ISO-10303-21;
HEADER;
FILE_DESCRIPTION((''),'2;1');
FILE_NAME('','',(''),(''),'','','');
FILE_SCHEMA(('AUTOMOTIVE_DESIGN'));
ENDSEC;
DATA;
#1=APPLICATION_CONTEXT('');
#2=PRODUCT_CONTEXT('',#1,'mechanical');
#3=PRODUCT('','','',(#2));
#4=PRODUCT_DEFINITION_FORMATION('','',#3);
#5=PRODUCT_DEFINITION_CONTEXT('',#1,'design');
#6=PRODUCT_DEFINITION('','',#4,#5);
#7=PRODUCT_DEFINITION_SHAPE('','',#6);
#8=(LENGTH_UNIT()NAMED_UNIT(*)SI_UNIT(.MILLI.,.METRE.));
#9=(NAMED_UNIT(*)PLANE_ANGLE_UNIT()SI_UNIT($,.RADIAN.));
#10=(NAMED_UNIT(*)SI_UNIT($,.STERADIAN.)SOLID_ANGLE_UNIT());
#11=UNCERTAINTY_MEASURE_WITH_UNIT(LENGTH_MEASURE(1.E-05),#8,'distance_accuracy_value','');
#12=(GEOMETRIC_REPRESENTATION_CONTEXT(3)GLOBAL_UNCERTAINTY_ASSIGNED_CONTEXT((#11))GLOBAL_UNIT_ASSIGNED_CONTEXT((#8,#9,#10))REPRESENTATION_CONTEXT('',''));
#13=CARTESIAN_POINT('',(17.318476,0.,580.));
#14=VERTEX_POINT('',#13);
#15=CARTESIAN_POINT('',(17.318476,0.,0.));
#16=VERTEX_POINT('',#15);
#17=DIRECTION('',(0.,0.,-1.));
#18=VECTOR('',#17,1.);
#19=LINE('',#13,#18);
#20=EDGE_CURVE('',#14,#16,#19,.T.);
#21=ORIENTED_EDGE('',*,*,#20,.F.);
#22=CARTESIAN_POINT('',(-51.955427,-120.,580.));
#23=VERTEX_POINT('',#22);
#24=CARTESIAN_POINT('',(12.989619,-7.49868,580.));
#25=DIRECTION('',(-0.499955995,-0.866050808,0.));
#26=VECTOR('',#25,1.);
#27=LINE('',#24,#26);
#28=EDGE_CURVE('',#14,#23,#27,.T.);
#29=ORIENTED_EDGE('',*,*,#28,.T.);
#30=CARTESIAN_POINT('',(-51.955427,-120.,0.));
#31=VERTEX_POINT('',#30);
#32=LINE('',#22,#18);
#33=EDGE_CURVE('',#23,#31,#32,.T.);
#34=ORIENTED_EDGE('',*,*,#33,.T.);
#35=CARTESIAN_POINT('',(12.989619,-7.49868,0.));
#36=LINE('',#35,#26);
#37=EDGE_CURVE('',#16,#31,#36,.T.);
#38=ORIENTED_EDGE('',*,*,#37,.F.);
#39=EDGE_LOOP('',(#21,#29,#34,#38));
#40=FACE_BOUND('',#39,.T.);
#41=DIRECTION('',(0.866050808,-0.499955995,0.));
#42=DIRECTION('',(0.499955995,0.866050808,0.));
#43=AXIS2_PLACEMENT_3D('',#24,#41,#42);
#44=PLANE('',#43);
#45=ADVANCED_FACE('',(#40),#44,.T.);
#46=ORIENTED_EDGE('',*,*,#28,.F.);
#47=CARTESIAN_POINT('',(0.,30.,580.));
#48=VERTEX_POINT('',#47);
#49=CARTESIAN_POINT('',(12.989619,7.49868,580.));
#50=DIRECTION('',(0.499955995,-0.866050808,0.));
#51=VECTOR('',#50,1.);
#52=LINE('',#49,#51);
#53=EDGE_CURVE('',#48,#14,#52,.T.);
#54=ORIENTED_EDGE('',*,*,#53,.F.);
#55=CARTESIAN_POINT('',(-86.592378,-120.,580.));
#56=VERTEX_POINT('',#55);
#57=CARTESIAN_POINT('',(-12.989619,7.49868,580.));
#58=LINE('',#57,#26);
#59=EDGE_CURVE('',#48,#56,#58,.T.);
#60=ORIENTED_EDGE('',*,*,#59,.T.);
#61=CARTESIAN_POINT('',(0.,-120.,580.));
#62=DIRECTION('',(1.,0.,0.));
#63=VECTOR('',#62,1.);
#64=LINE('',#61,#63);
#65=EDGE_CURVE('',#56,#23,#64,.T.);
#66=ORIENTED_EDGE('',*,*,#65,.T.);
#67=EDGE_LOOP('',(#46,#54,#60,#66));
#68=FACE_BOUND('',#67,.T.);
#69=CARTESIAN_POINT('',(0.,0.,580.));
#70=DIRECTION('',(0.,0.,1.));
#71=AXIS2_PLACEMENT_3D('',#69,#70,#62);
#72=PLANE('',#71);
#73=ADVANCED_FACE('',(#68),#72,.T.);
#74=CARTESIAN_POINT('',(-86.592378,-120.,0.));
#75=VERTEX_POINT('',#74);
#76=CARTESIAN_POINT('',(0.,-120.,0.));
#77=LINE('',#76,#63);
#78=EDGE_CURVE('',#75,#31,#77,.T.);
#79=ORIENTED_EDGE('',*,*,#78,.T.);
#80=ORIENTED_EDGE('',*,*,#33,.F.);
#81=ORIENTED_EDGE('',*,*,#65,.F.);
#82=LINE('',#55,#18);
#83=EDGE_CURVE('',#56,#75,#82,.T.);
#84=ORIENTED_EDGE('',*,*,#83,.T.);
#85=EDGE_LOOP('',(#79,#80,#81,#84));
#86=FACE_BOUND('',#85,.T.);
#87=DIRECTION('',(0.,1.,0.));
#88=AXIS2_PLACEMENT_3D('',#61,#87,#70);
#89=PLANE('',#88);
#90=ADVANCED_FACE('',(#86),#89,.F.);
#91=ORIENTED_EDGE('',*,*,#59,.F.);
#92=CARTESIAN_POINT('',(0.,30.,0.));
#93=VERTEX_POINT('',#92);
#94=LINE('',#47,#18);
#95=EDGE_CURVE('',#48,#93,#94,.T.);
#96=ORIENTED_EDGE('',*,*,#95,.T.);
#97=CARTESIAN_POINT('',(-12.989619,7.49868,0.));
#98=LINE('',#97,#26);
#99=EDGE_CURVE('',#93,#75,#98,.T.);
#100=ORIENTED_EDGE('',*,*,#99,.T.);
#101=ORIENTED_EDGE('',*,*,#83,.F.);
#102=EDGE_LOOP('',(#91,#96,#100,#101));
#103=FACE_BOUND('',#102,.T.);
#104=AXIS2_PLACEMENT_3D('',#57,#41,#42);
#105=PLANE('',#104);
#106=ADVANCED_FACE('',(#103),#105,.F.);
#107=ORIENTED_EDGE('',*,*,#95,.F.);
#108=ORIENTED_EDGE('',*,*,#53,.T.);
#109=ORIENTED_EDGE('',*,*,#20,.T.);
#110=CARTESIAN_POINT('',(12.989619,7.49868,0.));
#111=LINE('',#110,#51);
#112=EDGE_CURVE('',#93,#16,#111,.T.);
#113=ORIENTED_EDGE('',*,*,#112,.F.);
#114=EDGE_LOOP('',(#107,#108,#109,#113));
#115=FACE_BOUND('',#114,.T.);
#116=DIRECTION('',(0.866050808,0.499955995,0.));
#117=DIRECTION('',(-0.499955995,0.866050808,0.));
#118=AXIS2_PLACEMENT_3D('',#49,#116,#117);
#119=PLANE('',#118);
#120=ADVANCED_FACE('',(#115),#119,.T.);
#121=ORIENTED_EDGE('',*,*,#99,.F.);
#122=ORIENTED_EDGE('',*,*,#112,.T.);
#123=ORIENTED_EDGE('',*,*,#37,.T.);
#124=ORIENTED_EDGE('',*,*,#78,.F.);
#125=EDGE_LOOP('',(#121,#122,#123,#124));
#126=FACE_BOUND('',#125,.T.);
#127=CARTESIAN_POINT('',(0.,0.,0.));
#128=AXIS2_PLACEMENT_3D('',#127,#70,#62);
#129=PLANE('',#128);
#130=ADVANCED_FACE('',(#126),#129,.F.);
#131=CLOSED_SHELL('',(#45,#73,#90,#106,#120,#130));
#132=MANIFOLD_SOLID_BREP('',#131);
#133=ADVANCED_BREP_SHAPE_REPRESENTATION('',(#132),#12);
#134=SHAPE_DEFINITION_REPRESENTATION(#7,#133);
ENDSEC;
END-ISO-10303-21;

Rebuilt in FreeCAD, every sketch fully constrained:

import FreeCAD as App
import Part
import Sketcher

V = App.Vector
Q = App.Units.Quantity

doc = App.newDocument("Part")
body = doc.addObject("PartDesign::Body", "Body")

# Sketch on XY plane
sketch1 = body.newObject("Sketcher::SketchObject", "Sketch")
sketch1.AttachmentSupport = (doc.getObject("XY_Plane"), [""])
sketch1.MapMode = "FlatFace"
sketch1.addGeometry(Part.LineSegment(V(17, 0, 0), V(0, 30, 0)), False)
sketch1.addGeometry(Part.LineSegment(V(0, 30, 0), V(-87, -120, 0)), False)
sketch1.addGeometry(Part.LineSegment(V(-87, -120, 0), V(-52, -120, 0)), False)
sketch1.addGeometry(Part.LineSegment(V(-52, -120, 0), V(17, 0, 0)), False)
sketch1.addConstraint(Sketcher.Constraint("Coincident", 0, 2, 1, 1))
sketch1.addConstraint(Sketcher.Constraint("Coincident", 1, 2, 2, 1))
sketch1.addConstraint(Sketcher.Constraint("Coincident", 2, 2, 3, 1))
sketch1.addConstraint(Sketcher.Constraint("Coincident", 3, 2, 0, 1))
sketch1.addConstraint(Sketcher.Constraint("Horizontal", 2))
sketch1.addConstraint(Sketcher.Constraint("PointOnObject", 0, 2, -2))
sketch1.addConstraint(Sketcher.Constraint("PointOnObject", 3, 2, -1))
sketch1.addConstraint(Sketcher.Constraint("Parallel", 1, 3))
sketch1.addConstraint(Sketcher.Constraint("DistanceY", -1, 1, 0, 2, Q("30 mm")))
sketch1.addConstraint(Sketcher.Constraint("DistanceY", 1, 2, -1, 1, Q("120 mm")))
sketch1.addConstraint(Sketcher.Constraint("Distance", 1, Q("173.2 mm")))
sketch1.addConstraint(Sketcher.Constraint("Distance", 0, Q("34.64 mm")))
pad1 = body.newObject("PartDesign::Pad", "Pad")
pad1.Profile = sketch1
pad1.Length = 580

# Sketch on XZ plane
sketch2 = body.newObject("Sketcher::SketchObject", "Sketch001")
sketch2.AttachmentSupport = (doc.getObject("XZ_Plane"), [""])
sketch2.MapMode = "FlatFace"
sketch2.AttachmentOffset = App.Placement(V(0, 0, -30), App.Rotation())
sketch2.addGeometry(Part.Circle(V(118, 290, 0), V(0, 0, 1), 100), False)
sketch2.addGeometry(Part.Circle(V(118, 100, 0), V(0, 0, 1), 32), False)
sketch2.addConstraint(Sketcher.Constraint("Vertical", 0, 3, 1, 3))
sketch2.addConstraint(Sketcher.Constraint("Diameter", 0, Q("200 mm")))
sketch2.addConstraint(Sketcher.Constraint("Diameter", 1, Q("63 mm")))
sketch2.addConstraint(Sketcher.Constraint("DistanceY", -1, 1, 0, 3, Q("290 mm")))
sketch2.addConstraint(Sketcher.Constraint("DistanceY", -1, 1, 1, 3, Q("100 mm")))
sketch2.addConstraint(Sketcher.Constraint("DistanceX", -1, 1, 0, 3, Q("118.403811 mm")))
pocket1 = body.newObject("PartDesign::Pocket", "Pocket")
pocket1.Profile = sketch2
pocket1.Length = 150
pocket1.Reversed = True

doc.recompute()
